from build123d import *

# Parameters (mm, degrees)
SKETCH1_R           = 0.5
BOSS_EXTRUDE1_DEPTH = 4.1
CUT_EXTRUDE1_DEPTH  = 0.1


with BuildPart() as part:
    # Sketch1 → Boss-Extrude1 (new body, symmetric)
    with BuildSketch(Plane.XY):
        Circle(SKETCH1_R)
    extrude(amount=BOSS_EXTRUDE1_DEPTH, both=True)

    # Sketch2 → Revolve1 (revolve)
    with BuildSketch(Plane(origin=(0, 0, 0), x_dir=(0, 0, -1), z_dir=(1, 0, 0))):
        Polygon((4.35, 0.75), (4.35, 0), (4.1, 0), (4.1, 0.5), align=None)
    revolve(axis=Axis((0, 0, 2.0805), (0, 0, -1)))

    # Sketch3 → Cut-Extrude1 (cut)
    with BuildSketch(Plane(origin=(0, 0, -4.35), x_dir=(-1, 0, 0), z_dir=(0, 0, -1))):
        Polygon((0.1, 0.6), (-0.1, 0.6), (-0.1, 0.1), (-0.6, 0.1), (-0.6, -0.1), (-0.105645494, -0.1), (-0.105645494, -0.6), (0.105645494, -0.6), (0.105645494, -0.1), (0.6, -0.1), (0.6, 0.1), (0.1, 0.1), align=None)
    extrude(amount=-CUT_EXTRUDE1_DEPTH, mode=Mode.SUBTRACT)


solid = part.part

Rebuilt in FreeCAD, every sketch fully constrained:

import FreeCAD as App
import Part
import Sketcher
from FreeCAD import Vector
Q = App.Units.Quantity

doc = App.newDocument("Part")
params = doc.addObject("Spreadsheet::Sheet", "Params")
for row, (alias, value) in enumerate([
    ("sketch1_diameter", "1 mm"),
    ("pad1_length", "8.2 mm"),
    ("sketch2_width", "0.5 mm"),
    ("sketch2_width2", "0.75 mm"),
    ("revolution_angle", "360 deg"),
    ("sketch3_width", "0.2 mm"),
    ("sketch3_width2", "0.5 mm"),
    ("pocket1_length", "0.1 mm"),
], start=1):
    params.set(f"A{row}", alias)
    params.set(f"B{row}", "=" + value)
    params.setAlias(f"B{row}", alias)

body = doc.addObject("PartDesign::Body", "Body")

sketch1 = body.newObject("Sketcher::SketchObject", "Sketch")
sketch1.AttachmentSupport = (doc.getObject("XY_Plane"), [""])
sketch1.MapMode = "FlatFace"
sketch1.addGeometry(Part.Circle(Vector(0, 0, 0), Vector(0, 0, 1), 0.5), False)
sketch1.addConstraint([
    Sketcher.Constraint("Coincident", 0, 3, -1, 1),
    Sketcher.Constraint("Diameter", 0, Q("1 mm")),
])
sketch1.setExpression("Constraints[1]", "Params.sketch1_diameter")
pad1 = body.newObject("PartDesign::Pad", "Pad")
pad1.Profile = sketch1
pad1.setExpression("Length", "Params.pad1_length")
pad1.Midplane = True

sketch2 = body.newObject("Sketcher::SketchObject", "Sketch001")
sketch2.AttachmentSupport = (doc.getObject("YZ_Plane"), [""])
sketch2.MapMode = "FlatFace"
sketch2.addGeometry([
    Part.LineSegment(Vector(0, -4.35, 0), Vector(0.75, -4.35, 0)),
    Part.LineSegment(Vector(0.75, -4.35, 0), Vector(0.5, -4.1, 0)),
    Part.LineSegment(Vector(0.5, -4.1, 0), Vector(0, -4.1, 0)),
    Part.LineSegment(Vector(0, -4.1, 0), Vector(0, -4.35, 0)),
], False)
sketch2.addConstraint([
    Sketcher.Constraint("Coincident", 0, 2, 1, 1),
    Sketcher.Constraint("Coincident", 1, 2, 2, 1),
    Sketcher.Constraint("Coincident", 2, 2, 3, 1),
    Sketcher.Constraint("Coincident", 3, 2, 0, 1),
    Sketcher.Constraint("Horizontal", 0),
    Sketcher.Constraint("Horizontal", 2),
    Sketcher.Constraint("Vertical", 3),
    Sketcher.Constraint("PointOnObject", 2, 2, -2),
    Sketcher.Constraint("Angle", 1, Q("135 deg")),
    Sketcher.Constraint("DistanceX", 2, 2, 2, 1, Q("0.5 mm")),
    Sketcher.Constraint("DistanceX", 0, 1, 0, 2, Q("0.75 mm")),
    Sketcher.Constraint("DistanceY", 1, 2, -1, 1, Q("4.1 mm")),
])
sketch2.setExpression("Constraints[9]", "Params.sketch2_width")
sketch2.setExpression("Constraints[10]", "Params.sketch2_width2")
revolution = body.newObject("PartDesign::Revolution", "Revolution")
revolution.Profile = sketch2
revolution.ReferenceAxis = (sketch2, ["V_Axis"])
revolution.setExpression("Angle", "Params.revolution_angle")

sketch3 = body.newObject("Sketcher::SketchObject", "Sketch002")
sketch3.AttachmentSupport = (doc.getObject("XY_Plane"), [""])
sketch3.MapMode = "FlatFace"
sketch3.AttachmentOffset = App.Placement(Vector(0, 0, -4.35), App.Rotation())
sketch3.addGeometry([
    Part.LineSegment(Vector(-0.1, 0.6, 0), Vector(0.1, 0.6, 0)),
    Part.LineSegment(Vector(0.1, 0.6, 0), Vector(0.1, 0.1, 0)),
    Part.LineSegment(Vector(0.1, 0.1, 0), Vector(0.6, 0.1, 0)),
    Part.LineSegment(Vector(0.6, 0.1, 0), Vector(0.6, -0.1, 0)),
    Part.LineSegment(Vector(0.6, -0.1, 0), Vector(0.105645, -0.1, 0)),
    Part.LineSegment(Vector(0.105645, -0.1, 0), Vector(0.105645, -0.6, 0)),
    Part.LineSegment(Vector(0.105645, -0.6, 0), Vector(-0.105645, -0.6, 0)),
    Part.LineSegment(Vector(-0.105645, -0.6, 0), Vector(-0.105645, -0.1, 0)),
    Part.LineSegment(Vector(-0.105645, -0.1, 0), Vector(-0.6, -0.1, 0)),
    Part.LineSegment(Vector(-0.6, -0.1, 0), Vector(-0.6, 0.1, 0)),
    Part.LineSegment(Vector(-0.6, 0.1, 0), Vector(-0.1, 0.1, 0)),
    Part.LineSegment(Vector(-0.1, 0.1, 0), Vector(-0.1, 0.6, 0)),
], False)
sketch3.addConstraint([
    Sketcher.Constraint("Coincident", 0, 2, 1, 1),
    Sketcher.Constraint("Coincident", 1, 2, 2, 1),
    Sketcher.Constraint("Coincident", 2, 2, 3, 1),
    Sketcher.Constraint("Coincident", 3, 2, 4, 1),
    Sketcher.Constraint("Coincident", 4, 2, 5, 1),
    Sketcher.Constraint("Coincident", 5, 2, 6, 1),
    Sketcher.Constraint("Coincident", 6, 2, 7, 1),
    Sketcher.Constraint("Coincident", 7, 2, 8, 1),
    Sketcher.Constraint("Coincident", 8, 2, 9, 1),
    Sketcher.Constraint("Coincident", 9, 2, 10, 1),
    Sketcher.Constraint("Coincident", 10, 2, 11, 1),
    Sketcher.Constraint("Coincident", 11, 2, 0, 1),
    Sketcher.Constraint("Horizontal", 0),
    Sketcher.Constraint("Vertical", 1),
    Sketcher.Constraint("Horizontal", 2),
    Sketcher.Constraint("Vertical", 3),
    Sketcher.Constraint("Horizontal", 4),
    Sketcher.Constraint("Vertical", 5),
    Sketcher.Constraint("Horizontal", 6),
    Sketcher.Constraint("Vertical", 7),
    Sketcher.Constraint("Horizontal", 8),
    Sketcher.Constraint("Vertical", 9),
    Sketcher.Constraint("Horizontal", 10),
    Sketcher.Constraint("Vertical", 11),
    Sketcher.Constraint("Symmetric", 2, 2, 8, 2, -1, 1),
    Sketcher.Constraint("Symmetric", 4, 2, 7, 2, -2),
    Sketcher.Constraint("Symmetric", 1, 2, 10, 2, -2),
    Sketcher.Constraint("Equal", 10, 1),
    Sketcher.Constraint("Equal", 0, 3),
    Sketcher.Constraint("Equal", 1, 5),
    Sketcher.Constraint("DistanceX", 0, 1, 0, 2, Q("0.2 mm")),
    Sketcher.Constraint("DistanceX", 2, 1, 2, 2, Q("0.5 mm")),
    Sketcher.Constraint("DistanceX", 6, 2, 6, 1, Q("0.211291 mm")),
])
sketch3.setExpression("Constraints[30]", "Params.sketch3_width")
sketch3.setExpression("Constraints[31]", "Params.sketch3_width2")
pocket1 = body.newObject("PartDesign::Pocket", "Pocket")
pocket1.Profile = sketch3
pocket1.setExpression("Length", "Params.pocket1_length")
pocket1.Reversed = True

doc.recompute()
